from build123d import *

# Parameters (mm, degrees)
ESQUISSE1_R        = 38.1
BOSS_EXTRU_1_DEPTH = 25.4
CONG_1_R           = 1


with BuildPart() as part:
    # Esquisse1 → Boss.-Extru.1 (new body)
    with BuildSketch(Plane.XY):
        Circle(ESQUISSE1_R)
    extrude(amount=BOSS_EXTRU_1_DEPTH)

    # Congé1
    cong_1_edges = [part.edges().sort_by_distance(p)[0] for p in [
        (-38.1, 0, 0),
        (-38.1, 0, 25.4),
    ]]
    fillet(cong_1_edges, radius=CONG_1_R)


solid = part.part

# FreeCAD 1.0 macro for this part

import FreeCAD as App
import Part
import Sketcher
Q = App.Units.Quantity


def edges_at(feature, points):
    """Names of the edges that pass closest to the given points."""
    edges = feature.Shape.Edges
    near = lambda p: min(range(len(edges)), key=lambda i: edges[i].distToShape(Part.Vertex(*p))[0])
    return sorted({f"Edge{near(p) + 1}" for p in points})

doc = App.newDocument("Part")
body = doc.addObject("PartDesign::Body", "Body")

sketch1 = body.newObject("Sketcher::SketchObject", "Sketch")
sketch1.AttachmentSupport = (doc.getObject("XY_Plane"), [""])
sketch1.MapMode = "FlatFace"
sketch1.addGeometry(Part.Circle(App.Vector(0, 0, 0), App.Vector(0, 0, 1), 38), False)
sketch1.addConstraint(Sketcher.Constraint("Coincident", 0, 3, -1, 1))
sketch1.addConstraint(Sketcher.Constraint("Diameter", 0, Q("3 in")))
pad1 = body.newObject("PartDesign::Pad", "Pad")
pad1.Profile = sketch1
pad1.Length = Q("1 in")
doc.recompute()

fillet = body.newObject("PartDesign::Fillet", "Fillet")
fillet.Base = (pad1, edges_at(pad1, [(-38.1, 0, 0), (-38.1, 0, 25.4)]))
fillet.Radius = 1

doc.recompute()
